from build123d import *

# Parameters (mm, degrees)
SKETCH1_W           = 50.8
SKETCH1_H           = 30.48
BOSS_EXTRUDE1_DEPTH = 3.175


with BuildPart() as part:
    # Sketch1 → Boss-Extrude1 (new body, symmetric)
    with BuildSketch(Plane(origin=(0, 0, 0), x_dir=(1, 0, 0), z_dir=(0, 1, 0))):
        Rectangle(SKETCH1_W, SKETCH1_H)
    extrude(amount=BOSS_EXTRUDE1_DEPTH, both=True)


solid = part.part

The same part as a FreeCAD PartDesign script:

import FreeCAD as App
import Part
import Sketcher
Q = App.Units.Quantity


def add_polygon(sketch, points):
    """Adds a closed chain of lines whose ends are joined by coincident constraints."""
    first, n = sketch.GeometryCount, len(points)
    for a, b in zip(points, points[1:] + points[:1]):
        sketch.addGeometry(Part.LineSegment(App.Vector(*a, 0), App.Vector(*b, 0)), False)
    for i in range(n):
        sketch.addConstraint(Sketcher.Constraint("Coincident", first + i, 2, first + (i + 1) % n, 1))

doc = App.newDocument("Part")
params = doc.addObject("Spreadsheet::Sheet", "Params")
for row, (alias, value) in enumerate([
    ("sketch1_width", "2 in"),
    ("sketch1_height", "1.2 in"),
    ("pad1_length", "0.25 in"),
], start=1):
    params.set(f"A{row}", alias)
    params.set(f"B{row}", "=" + value)
    params.setAlias(f"B{row}", alias)

body = doc.addObject("PartDesign::Body", "Body")

sketch1 = body.newObject("Sketcher::SketchObject", "Sketch")
sketch1.AttachmentSupport = (doc.getObject("XZ_Plane"), [""])
sketch1.MapMode = "FlatFace"
add_polygon(sketch1, [(-25, -15), (-25, 15), (25, 15), (25, -15)])
sketch1.addConstraint([
    Sketcher.Constraint("Vertical", 0),
    Sketcher.Constraint("Horizontal", 1),
    Sketcher.Constraint("Vertical", 2),
    Sketcher.Constraint("Horizontal", 3),
    Sketcher.Constraint("Symmetric", 0, 2, 2, 2, -1, 1),
    Sketcher.Constraint("DistanceX", 1, 1, 1, 2, Q("2 in")),
    Sketcher.Constraint("DistanceY", 0, 1, 0, 2, Q("1.2 in")),
])
sketch1.setExpression("Constraints[9]", "Params.sketch1_width")
sketch1.setExpression("Constraints[10]", "Params.sketch1_height")
pad1 = body.newObject("PartDesign::Pad", "Pad")
pad1.Profile = sketch1
pad1.setExpression("Length", "Params.pad1_length")
pad1.Midplane = True

doc.recompute()
